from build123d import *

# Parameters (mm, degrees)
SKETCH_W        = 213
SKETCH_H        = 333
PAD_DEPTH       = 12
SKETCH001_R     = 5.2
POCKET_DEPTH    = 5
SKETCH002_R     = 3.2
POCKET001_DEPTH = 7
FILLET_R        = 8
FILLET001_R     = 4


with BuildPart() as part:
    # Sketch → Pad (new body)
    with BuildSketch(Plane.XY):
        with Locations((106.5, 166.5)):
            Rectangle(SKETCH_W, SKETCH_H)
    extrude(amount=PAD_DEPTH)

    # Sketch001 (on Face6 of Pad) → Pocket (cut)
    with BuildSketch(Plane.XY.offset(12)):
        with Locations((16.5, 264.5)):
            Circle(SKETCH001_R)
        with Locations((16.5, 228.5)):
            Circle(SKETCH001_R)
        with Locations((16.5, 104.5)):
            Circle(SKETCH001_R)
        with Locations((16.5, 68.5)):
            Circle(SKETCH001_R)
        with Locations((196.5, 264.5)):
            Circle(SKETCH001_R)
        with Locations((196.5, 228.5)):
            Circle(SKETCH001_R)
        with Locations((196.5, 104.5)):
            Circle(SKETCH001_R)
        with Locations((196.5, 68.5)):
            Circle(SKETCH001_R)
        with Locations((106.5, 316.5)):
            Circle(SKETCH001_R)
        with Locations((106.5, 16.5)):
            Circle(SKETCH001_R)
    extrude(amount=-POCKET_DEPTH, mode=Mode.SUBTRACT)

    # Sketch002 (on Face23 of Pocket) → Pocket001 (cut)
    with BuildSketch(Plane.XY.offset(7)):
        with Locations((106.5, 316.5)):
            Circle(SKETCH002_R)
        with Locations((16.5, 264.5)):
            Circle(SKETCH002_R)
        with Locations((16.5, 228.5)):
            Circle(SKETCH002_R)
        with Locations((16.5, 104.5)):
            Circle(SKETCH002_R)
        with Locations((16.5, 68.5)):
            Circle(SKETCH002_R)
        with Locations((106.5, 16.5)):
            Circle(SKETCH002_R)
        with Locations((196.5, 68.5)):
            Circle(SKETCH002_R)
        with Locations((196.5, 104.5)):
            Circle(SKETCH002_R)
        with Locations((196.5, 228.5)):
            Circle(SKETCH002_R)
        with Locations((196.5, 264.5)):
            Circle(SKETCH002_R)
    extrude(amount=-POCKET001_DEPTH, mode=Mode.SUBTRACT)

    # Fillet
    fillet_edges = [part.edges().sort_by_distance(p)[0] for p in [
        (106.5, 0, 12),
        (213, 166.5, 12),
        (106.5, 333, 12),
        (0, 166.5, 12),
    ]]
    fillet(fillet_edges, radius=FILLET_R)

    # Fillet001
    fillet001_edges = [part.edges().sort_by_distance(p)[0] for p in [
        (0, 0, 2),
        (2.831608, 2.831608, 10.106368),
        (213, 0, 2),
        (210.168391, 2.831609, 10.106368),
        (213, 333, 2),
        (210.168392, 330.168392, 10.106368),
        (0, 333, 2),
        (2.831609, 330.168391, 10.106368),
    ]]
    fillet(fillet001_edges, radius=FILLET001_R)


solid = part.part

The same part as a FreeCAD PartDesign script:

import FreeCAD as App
import Part
import Sketcher
from FreeCAD import Vector
Q = App.Units.Quantity


def edges_at(feature, points):
    """Names of the edges that pass closest to the given points."""
    edges = feature.Shape.Edges
    near = lambda p: min(range(len(edges)), key=lambda i: edges[i].distToShape(Part.Vertex(*p))[0])
    return sorted({f"Edge{near(p) + 1}" for p in points})


def add_polygon(sketch, points):
    """Adds a closed chain of lines whose ends are joined by coincident constraints."""
    first, n = sketch.GeometryCount, len(points)
    for a, b in zip(points, points[1:] + points[:1]):
        sketch.addGeometry(Part.LineSegment(App.Vector(*a, 0), App.Vector(*b, 0)), False)
    for i in range(n):
        sketch.addConstraint(Sketcher.Constraint("Coincident", first + i, 2, first + (i + 1) % n, 1))

doc = App.newDocument("Part")
params = doc.addObject("Spreadsheet::Sheet", "Params")
for row, (alias, value) in enumerate([
    ("sketch1_width", "213 mm"),
    ("sketch1_height", "333 mm"),
    ("pad1_length", "12 mm"),
    ("sketch2_diameter", "10.4 mm"),
    ("pocket1_length", "5 mm"),
    ("sketch3_diameter", "6.4 mm"),
    ("pocket2_length", "7 mm"),
    ("fillet_radius", "8 mm"),
    ("fillet2_radius", "4 mm"),
], start=1):
    params.set(f"A{row}", alias)
    params.set(f"B{row}", "=" + value)
    params.setAlias(f"B{row}", alias)

body = doc.addObject("PartDesign::Body", "Body")

sketch1 = body.newObject("Sketcher::SketchObject", "Sketch")
sketch1.AttachmentSupport = (doc.getObject("XY_Plane"), [""])
sketch1.MapMode = "FlatFace"
add_polygon(sketch1, [(0, 333), (0, 0), (213, 0), (213, 333)])
sketch1.addConstraint([
    Sketcher.Constraint("Vertical", 0),
    Sketcher.Constraint("Horizontal", 1),
    Sketcher.Constraint("Vertical", 2),
    Sketcher.Constraint("Horizontal", 3),
    Sketcher.Constraint("Coincident", 0, 2, -1, 1),
    Sketcher.Constraint("DistanceX", 1, 1, 1, 2, Q("213 mm")),
    Sketcher.Constraint("DistanceY", 0, 2, 0, 1, Q("333 mm")),
])
sketch1.setExpression("Constraints[9]", "Params.sketch1_width")
sketch1.setExpression("Constraints[10]", "Params.sketch1_height")
pad1 = body.newObject("PartDesign::Pad", "Pad")
pad1.Profile = sketch1
pad1.setExpression("Length", "Params.pad1_length")

sketch2 = body.newObject("Sketcher::SketchObject", "Sketch001")
sketch2.AttachmentSupport = (doc.getObject("XY_Plane"), [""])
sketch2.MapMode = "FlatFace"
sketch2.AttachmentOffset = App.Placement(Vector(0, 0, 12), App.Rotation())
sketch2.addGeometry([
    Part.Circle(Vector(16, 264, 0), Vector(0, 0, 1), 5),
    Part.Circle(Vector(16, 228, 0), Vector(0, 0, 1), 5),
    Part.Circle(Vector(16, 104, 0), Vector(0, 0, 1), 5),
    Part.Circle(Vector(16, 68, 0), Vector(0, 0, 1), 5),
    Part.Circle(Vector(196, 264, 0), Vector(0, 0, 1), 5),
    Part.Circle(Vector(196, 228, 0), Vector(0, 0, 1), 5),
    Part.Circle(Vector(196, 104, 0), Vector(0, 0, 1), 5),
    Part.Circle(Vector(196, 68, 0), Vector(0, 0, 1), 5),
    Part.Circle(Vector(106, 316, 0), Vector(0, 0, 1), 5),
    Part.Circle(Vector(106, 16, 0), Vector(0, 0, 1), 5),
], False)
sketch2.addConstraint([
    Sketcher.Constraint("Equal", 0, 1),
    Sketcher.Constraint("Equal", 1, 2),
    Sketcher.Constraint("Equal", 2, 3),
    Sketcher.Constraint("Equal", 3, 4),
    Sketcher.Constraint("Equal", 4, 5),
    Sketcher.Constraint("Equal", 5, 6),
    Sketcher.Constraint("Equal", 6, 7),
    Sketcher.Constraint("Equal", 7, 8),
    Sketcher.Constraint("Equal", 8, 9),
    Sketcher.Constraint("Horizontal", 0, 3, 4, 3),
    Sketcher.Constraint("Horizontal", 1, 3, 5, 3),
    Sketcher.Constraint("Horizontal", 2, 3, 6, 3),
    Sketcher.Constraint("Horizontal", 3, 3, 7, 3),
    Sketcher.Constraint("Vertical", 0, 3, 1, 3),
    Sketcher.Constraint("Vertical", 1, 3, 2, 3),
    Sketcher.Constraint("Vertical", 2, 3, 3, 3),
    Sketcher.Constraint("Vertical", 4, 3, 5, 3),
    Sketcher.Constraint("Vertical", 5, 3, 6, 3),
    Sketcher.Constraint("Vertical", 6, 3, 7, 3),
    Sketcher.Constraint("Vertical", 8, 3, 9, 3),
    Sketcher.Constraint("Diameter", 0, Q("10.4 mm")),
    Sketcher.Constraint("DistanceY", 1, 3, 0, 3, Q("36 mm")),
    Sketcher.Constraint("DistanceY", 2, 3, 1, 3, Q("124 mm")),
    Sketcher.Constraint("DistanceY", 3, 3, 2, 3, Q("36 mm")),
    Sketcher.Constraint("DistanceX", 0, 3, 4, 3, Q("180 mm")),
    Sketcher.Constraint("DistanceX", 0, 3, 8, 3, Q("90 mm")),
    Sketcher.Constraint("DistanceY", 0, 3, 8, 3, Q("52 mm")),
    Sketcher.Constraint("DistanceY", 9, 3, 3, 3, Q("52 mm")),
    Sketcher.Constraint("DistanceX", -1, 1, 0, 3, Q("16.5 mm")),
    Sketcher.Constraint("DistanceY", -1, 1, 0, 3, Q("264.5 mm")),
])
sketch2.setExpression("Constraints[20]", "Params.sketch2_diameter")
pocket1 = body.newObject("PartDesign::Pocket", "Pocket")
pocket1.Profile = sketch2
pocket1.setExpression("Length", "Params.pocket1_length")

sketch3 = body.newObject("Sketcher::SketchObject", "Sketch002")
sketch3.AttachmentSupport = (doc.getObject("XY_Plane"), [""])
sketch3.MapMode = "FlatFace"
sketch3.AttachmentOffset = App.Placement(Vector(0, 0, 7), App.Rotation())
sketch3.addGeometry([
    Part.Circle(Vector(106.5, 316.5, 0), Vector(0, 0, 1), 3.2),
    Part.Circle(Vector(16.5, 264.5, 0), Vector(0, 0, 1), 3.2),
    Part.Circle(Vector(16.5, 228.5, 0), Vector(0, 0, 1), 3.2),
    Part.Circle(Vector(16.5, 104.5, 0), Vector(0, 0, 1), 3.2),
    Part.Circle(Vector(16.5, 68.5, 0), Vector(0, 0, 1), 3.2),
    Part.Circle(Vector(106.5, 16.5, 0), Vector(0, 0, 1), 3.2),
    Part.Circle(Vector(196.5, 68.5, 0), Vector(0, 0, 1), 3.2),
    Part.Circle(Vector(196.5, 104.5, 0), Vector(0, 0, 1), 3.2),
    Part.Circle(Vector(196.5, 228.5, 0), Vector(0, 0, 1), 3.2),
    Part.Circle(Vector(196.5, 264.5, 0), Vector(0, 0, 1), 3.2),
], False)
sketch3.addConstraint([
    Sketcher.Constraint("Equal", 0, 1),
    Sketcher.Constraint("Equal", 1, 2),
    Sketcher.Constraint("Equal", 2, 3),
    Sketcher.Constraint("Equal", 3, 4),
    Sketcher.Constraint("Equal", 4, 5),
    Sketcher.Constraint("Equal", 5, 6),
    Sketcher.Constraint("Equal", 6, 7),
    Sketcher.Constraint("Equal", 7, 8),
    Sketcher.Constraint("Equal", 8, 9),
    Sketcher.Constraint("Horizontal", 4, 3, 6, 3),
    Sketcher.Constraint("Horizontal", 3, 3, 7, 3),
    Sketcher.Constraint("Horizontal", 2, 3, 8, 3),
    Sketcher.Constraint("Horizontal", 1, 3, 9, 3),
    Sketcher.Constraint("Vertical", 1, 3, 2, 3),
    Sketcher.Constraint("Vertical", 2, 3, 3, 3),
    Sketcher.Constraint("Vertical", 3, 3, 4, 3),
    Sketcher.Constraint("Vertical", 0, 3, 5, 3),
    Sketcher.Constraint("Vertical", 6, 3, 7, 3),
    Sketcher.Constraint("Vertical", 7, 3, 8, 3),
    Sketcher.Constraint("Vertical", 8, 3, 9, 3),
    Sketcher.Constraint("Diameter", 0, Q("6.4 mm")),
    Sketcher.Constraint("DistanceX", 1, 3, 0, 3, Q("90 mm")),
    Sketcher.Constraint("DistanceY", 1, 3, 0, 3, Q("52 mm")),
    Sketcher.Constraint("DistanceY", 2, 3, 1, 3, Q("36 mm")),
    Sketcher.Constraint("DistanceY", 3, 3, 2, 3, Q("124 mm")),
    Sketcher.Constraint("DistanceY", 4, 3, 3, 3, Q("36 mm")),
    Sketcher.Constraint("DistanceY", 5, 3, 4, 3, Q("52 mm")),
    Sketcher.Constraint("DistanceX", 5, 3, 6, 3, Q("90 mm")),
    Sketcher.Constraint("DistanceX", -1, 1, 0, 3, Q("106.5 mm")),
    Sketcher.Constraint("DistanceY", -1, 1, 0, 3, Q("316.5 mm")),
])
sketch3.setExpression("Constraints[20]", "Params.sketch3_diameter")
pocket2 = body.newObject("PartDesign::Pocket", "Pocket001")
pocket2.Profile = sketch3
pocket2.setExpression("Length", "Params.pocket2_length")
doc.recompute()

fillet = body.newObject("PartDesign::Fillet", "Fillet")
fillet.Base = (pocket2, edges_at(pocket2, [
    (106.5, 0, 12),
    (213, 166.5, 12),
    (106.5, 333, 12),
    (0, 166.5, 12),
]))
fillet.setExpression("Radius", "Params.fillet_radius")
doc.recompute()

fillet2 = body.newObject("PartDesign::Fillet", "Fillet001")
fillet2.Base = (fillet, edges_at(fillet, [
    (0, 0, 2),
    (2.832, 2.832, 10.106),
    (213, 0, 2),
    (210.168, 2.832, 10.106),
    (213, 333, 2),
    (210.168, 330.168, 10.106),
    (0, 333, 2),
    (2.832, 330.168, 10.106),
]))
fillet2.setExpression("Radius", "Params.fillet2_radius")

doc.recompute()
